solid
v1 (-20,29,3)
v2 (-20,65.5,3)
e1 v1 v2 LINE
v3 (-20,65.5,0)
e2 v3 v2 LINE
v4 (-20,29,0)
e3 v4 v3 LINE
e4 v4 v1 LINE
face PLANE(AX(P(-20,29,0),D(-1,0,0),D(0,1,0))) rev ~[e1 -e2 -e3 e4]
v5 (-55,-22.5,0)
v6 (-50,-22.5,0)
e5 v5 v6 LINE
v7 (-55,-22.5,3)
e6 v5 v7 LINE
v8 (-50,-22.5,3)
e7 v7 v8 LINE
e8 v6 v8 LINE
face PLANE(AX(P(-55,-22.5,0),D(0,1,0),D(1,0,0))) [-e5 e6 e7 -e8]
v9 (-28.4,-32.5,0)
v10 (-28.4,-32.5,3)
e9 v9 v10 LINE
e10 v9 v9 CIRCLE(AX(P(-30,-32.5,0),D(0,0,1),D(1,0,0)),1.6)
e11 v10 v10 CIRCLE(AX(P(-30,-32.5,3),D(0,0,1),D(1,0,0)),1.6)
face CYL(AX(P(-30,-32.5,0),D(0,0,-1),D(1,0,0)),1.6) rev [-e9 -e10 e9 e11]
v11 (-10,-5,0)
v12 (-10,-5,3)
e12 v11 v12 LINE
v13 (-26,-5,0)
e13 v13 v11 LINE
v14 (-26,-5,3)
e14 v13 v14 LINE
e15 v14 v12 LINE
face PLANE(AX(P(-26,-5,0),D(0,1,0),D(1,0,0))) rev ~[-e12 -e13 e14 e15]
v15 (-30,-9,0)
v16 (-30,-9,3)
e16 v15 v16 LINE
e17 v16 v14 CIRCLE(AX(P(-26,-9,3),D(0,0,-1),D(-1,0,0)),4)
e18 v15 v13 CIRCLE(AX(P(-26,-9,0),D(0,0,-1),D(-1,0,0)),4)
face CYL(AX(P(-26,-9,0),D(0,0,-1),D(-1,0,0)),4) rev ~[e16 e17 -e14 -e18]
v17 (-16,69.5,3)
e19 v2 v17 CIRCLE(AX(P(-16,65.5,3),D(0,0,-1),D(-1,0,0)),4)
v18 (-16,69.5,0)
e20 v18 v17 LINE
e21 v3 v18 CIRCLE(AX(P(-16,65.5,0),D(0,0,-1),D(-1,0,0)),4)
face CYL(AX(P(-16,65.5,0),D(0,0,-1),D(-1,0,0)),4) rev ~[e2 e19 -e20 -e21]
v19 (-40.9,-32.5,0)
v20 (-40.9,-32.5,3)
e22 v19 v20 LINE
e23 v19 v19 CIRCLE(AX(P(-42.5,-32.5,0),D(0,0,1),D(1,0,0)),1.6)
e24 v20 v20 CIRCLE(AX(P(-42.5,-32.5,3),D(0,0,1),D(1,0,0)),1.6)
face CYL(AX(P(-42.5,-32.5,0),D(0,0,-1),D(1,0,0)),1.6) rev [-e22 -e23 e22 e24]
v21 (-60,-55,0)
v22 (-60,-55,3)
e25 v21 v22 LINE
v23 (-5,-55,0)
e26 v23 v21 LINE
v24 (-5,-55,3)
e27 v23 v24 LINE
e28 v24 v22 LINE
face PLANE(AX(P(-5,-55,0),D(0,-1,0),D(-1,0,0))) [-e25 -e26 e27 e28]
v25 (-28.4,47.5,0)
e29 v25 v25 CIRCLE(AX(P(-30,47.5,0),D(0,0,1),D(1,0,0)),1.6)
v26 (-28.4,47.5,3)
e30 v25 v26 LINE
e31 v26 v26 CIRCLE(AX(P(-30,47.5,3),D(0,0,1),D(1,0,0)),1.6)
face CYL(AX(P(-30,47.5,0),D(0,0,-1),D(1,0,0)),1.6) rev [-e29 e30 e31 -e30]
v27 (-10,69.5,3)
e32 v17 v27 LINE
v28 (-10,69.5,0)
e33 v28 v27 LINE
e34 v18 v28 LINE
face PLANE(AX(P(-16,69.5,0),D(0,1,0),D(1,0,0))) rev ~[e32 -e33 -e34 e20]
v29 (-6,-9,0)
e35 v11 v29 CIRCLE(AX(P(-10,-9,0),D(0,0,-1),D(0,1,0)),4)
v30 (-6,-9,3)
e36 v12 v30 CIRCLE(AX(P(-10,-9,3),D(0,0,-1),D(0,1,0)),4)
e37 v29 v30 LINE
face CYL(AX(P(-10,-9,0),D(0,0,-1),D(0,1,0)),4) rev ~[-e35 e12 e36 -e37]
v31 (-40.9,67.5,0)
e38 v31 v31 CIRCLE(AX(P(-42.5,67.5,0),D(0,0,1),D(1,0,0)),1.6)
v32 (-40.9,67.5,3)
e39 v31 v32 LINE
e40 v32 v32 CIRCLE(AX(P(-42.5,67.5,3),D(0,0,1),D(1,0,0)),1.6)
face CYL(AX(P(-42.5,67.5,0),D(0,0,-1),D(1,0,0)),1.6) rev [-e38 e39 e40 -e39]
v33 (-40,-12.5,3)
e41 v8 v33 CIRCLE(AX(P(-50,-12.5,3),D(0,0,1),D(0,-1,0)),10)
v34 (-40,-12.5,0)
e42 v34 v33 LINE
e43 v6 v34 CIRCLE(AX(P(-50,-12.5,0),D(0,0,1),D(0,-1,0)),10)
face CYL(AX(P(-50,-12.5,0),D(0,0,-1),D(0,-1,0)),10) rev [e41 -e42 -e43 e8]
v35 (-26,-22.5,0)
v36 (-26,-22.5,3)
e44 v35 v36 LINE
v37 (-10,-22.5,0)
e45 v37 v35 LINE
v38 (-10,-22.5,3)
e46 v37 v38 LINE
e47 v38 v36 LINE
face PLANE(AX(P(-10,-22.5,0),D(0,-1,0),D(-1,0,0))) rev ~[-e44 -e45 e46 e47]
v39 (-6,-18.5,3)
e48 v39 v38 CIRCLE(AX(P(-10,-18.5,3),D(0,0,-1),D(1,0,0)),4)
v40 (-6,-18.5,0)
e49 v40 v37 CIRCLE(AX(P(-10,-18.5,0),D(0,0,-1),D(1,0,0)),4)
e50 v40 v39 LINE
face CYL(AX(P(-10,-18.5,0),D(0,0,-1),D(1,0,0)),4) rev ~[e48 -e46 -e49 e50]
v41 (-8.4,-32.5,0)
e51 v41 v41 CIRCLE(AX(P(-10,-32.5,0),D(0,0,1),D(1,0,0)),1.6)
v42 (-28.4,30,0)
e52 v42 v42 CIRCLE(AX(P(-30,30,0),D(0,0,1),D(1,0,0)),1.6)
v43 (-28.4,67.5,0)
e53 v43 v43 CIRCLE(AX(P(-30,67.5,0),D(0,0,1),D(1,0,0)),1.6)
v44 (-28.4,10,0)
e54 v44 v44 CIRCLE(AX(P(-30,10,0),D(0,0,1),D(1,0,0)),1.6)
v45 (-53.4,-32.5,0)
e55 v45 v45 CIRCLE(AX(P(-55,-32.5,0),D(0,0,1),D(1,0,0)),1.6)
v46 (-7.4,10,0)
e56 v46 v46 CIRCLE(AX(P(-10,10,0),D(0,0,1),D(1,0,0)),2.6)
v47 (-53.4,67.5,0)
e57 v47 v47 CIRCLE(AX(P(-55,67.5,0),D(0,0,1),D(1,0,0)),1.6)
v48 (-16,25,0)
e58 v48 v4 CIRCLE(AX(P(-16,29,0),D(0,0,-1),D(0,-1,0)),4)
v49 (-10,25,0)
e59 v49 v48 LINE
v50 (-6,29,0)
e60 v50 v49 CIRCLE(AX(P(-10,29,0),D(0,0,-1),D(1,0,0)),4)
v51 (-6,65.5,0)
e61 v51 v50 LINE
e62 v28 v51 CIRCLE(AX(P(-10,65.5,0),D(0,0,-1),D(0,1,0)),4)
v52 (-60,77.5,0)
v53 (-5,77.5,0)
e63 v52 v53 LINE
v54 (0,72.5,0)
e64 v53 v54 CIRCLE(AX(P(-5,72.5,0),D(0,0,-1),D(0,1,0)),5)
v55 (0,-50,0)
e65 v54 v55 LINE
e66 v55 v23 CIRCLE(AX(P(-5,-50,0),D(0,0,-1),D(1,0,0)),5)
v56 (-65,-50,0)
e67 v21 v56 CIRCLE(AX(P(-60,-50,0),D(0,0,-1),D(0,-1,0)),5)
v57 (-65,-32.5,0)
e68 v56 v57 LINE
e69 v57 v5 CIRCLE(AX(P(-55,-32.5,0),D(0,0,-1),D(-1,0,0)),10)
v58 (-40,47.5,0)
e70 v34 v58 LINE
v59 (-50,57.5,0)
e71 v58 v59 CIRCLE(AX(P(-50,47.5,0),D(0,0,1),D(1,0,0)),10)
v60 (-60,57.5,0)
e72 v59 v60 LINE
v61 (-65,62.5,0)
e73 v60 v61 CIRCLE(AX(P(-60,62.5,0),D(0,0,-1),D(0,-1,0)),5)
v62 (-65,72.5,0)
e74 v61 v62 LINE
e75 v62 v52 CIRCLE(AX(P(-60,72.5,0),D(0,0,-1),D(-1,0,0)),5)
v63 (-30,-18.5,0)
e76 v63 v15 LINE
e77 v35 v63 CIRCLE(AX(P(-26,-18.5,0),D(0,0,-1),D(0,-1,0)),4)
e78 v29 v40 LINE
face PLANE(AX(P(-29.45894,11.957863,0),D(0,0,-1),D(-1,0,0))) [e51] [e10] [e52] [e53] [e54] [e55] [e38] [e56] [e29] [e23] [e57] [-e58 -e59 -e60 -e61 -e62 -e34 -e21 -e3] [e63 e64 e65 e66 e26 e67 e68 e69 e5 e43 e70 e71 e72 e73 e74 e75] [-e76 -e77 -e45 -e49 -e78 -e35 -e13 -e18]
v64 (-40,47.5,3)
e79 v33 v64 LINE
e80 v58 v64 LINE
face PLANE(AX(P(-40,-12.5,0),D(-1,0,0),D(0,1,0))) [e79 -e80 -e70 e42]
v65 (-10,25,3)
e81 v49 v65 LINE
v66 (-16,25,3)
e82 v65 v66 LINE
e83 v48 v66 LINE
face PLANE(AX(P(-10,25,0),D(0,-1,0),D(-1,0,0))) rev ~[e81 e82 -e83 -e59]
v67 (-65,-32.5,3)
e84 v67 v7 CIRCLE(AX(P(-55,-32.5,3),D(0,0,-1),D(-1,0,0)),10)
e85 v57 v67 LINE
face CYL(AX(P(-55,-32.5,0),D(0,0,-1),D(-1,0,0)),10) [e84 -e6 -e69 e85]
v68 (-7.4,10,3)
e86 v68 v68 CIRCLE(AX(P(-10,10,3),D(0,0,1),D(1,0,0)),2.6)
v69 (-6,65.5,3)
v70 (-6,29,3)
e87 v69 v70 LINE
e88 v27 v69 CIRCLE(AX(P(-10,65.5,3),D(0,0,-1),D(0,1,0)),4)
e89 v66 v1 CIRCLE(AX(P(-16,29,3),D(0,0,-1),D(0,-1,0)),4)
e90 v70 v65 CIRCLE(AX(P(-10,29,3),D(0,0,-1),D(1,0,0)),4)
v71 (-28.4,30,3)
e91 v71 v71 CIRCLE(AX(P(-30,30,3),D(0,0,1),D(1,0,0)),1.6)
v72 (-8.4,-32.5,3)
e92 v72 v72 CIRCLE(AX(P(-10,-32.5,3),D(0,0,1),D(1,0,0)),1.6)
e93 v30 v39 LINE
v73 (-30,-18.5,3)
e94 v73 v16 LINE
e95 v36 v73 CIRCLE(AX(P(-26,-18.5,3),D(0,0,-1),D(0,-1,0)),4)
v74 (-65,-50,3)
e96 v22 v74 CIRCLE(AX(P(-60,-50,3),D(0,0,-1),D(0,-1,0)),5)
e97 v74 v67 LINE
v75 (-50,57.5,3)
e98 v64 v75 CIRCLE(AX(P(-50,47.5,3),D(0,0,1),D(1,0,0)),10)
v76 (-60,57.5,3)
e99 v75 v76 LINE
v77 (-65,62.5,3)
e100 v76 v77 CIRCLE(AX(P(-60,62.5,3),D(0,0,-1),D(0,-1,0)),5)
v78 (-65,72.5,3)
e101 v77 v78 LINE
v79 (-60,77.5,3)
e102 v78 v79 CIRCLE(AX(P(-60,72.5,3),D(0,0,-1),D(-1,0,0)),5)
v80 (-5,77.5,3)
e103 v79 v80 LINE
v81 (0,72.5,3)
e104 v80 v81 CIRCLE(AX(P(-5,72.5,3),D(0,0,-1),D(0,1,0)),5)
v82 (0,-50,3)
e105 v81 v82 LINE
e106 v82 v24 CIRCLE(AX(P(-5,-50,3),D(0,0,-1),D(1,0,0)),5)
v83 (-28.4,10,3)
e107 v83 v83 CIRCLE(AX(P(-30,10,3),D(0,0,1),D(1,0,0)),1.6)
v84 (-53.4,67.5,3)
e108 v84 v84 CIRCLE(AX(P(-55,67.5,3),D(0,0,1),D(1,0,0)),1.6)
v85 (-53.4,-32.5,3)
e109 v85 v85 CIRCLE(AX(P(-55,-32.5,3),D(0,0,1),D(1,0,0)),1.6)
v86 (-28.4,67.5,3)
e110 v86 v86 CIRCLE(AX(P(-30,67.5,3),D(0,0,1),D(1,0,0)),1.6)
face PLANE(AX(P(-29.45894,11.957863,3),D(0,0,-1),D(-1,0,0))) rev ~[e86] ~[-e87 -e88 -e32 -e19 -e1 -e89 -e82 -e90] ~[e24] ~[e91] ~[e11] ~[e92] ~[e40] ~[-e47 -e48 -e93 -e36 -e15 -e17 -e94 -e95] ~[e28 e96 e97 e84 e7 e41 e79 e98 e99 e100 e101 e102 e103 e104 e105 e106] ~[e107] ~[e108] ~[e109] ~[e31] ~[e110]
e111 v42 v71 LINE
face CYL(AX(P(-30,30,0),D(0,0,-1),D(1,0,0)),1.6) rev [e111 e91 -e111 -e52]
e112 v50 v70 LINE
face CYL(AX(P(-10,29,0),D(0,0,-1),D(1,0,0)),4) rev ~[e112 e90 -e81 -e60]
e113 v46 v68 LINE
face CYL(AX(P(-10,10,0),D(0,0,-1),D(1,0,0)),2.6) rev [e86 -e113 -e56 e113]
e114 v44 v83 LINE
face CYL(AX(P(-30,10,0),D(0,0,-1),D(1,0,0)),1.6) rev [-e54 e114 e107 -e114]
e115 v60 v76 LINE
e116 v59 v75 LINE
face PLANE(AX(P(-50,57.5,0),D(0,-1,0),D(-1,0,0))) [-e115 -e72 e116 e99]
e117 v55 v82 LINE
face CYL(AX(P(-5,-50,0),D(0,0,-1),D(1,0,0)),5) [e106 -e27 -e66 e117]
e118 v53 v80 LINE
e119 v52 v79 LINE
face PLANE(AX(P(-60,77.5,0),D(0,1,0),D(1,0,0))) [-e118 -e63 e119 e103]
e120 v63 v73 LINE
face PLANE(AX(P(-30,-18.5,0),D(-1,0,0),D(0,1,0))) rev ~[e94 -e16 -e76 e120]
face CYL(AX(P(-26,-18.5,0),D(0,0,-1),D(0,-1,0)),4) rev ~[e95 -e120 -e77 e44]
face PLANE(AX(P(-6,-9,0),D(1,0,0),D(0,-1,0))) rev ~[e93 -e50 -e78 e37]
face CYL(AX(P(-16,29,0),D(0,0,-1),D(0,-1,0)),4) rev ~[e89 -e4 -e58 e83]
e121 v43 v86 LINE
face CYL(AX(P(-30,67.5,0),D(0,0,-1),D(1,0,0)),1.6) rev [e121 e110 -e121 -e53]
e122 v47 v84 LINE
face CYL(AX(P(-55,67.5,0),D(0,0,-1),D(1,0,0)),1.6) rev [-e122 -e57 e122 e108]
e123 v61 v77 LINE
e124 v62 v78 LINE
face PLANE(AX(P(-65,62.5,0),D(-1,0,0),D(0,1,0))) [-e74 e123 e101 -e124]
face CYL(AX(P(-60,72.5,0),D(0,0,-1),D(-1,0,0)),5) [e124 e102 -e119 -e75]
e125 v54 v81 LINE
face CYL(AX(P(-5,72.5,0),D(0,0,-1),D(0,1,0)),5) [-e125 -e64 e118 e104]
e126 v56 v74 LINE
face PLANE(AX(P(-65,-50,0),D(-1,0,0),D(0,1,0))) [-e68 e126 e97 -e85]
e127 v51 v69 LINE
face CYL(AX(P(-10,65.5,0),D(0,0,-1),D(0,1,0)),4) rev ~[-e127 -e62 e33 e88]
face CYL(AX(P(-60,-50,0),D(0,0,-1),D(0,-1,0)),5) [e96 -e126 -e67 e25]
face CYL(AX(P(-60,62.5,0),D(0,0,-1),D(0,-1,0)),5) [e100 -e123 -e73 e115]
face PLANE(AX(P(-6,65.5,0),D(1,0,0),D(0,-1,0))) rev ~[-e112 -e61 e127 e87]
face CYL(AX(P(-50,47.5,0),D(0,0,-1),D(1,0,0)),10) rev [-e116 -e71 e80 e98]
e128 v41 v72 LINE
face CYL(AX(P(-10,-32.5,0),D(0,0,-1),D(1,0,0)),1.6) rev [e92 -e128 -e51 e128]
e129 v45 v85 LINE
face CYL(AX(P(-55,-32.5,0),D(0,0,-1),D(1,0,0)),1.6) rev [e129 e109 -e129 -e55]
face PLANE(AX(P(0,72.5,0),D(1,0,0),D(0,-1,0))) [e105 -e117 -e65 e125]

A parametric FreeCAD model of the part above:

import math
import FreeCAD as App
import Part
import Sketcher
from FreeCAD import Vector

doc = App.newDocument("Part")
body = doc.addObject("PartDesign::Body", "Body")

# Sketch on XY plane
sketch1 = body.newObject("Sketcher::SketchObject", "Sketch")
sketch1.AttachmentSupport = (doc.getObject("XY_Plane"), [""])
sketch1.MapMode = "FlatFace"
sketch1.addGeometry([
    Part.LineSegment(Vector(-5, 77.5, 0), Vector(-60, 77.5, 0)),  # 0
    Part.ArcOfCircle(Part.Circle(Vector(-60, 72.5, 0), Vector(0, 0, 1), 5), math.radians(90), math.radians(180)),  # 1
    Part.LineSegment(Vector(-65, 72.5, 0), Vector(-65, 62.5, 0)),  # 2
    Part.ArcOfCircle(Part.Circle(Vector(-60, 62.5, 0), Vector(0, 0, 1), 5), math.radians(180), math.radians(270)),  # 3
    Part.LineSegment(Vector(-60, 57.5, 0), Vector(-50, 57.5, 0)),  # 4
    Part.ArcOfCircle(Part.Circle(Vector(-50, 47.5, 0), Vector(0, 0, 1), 10), math.radians(0), math.radians(90)),  # 5
    Part.LineSegment(Vector(-40, 47.5, 0), Vector(-40, -12.5, 0)),  # 6
    Part.ArcOfCircle(Part.Circle(Vector(-50, -12.5, 0), Vector(0, 0, 1), 10), math.radians(-90), math.radians(0)),  # 7
    Part.LineSegment(Vector(-50, -22.5, 0), Vector(-55, -22.5, 0)),  # 8
    Part.ArcOfCircle(Part.Circle(Vector(-55, -32.5, 0), Vector(0, 0, 1), 10), math.radians(90), math.radians(180)),  # 9
    Part.LineSegment(Vector(-65, -32.5, 0), Vector(-65, -50, 0)),  # 10
    Part.ArcOfCircle(Part.Circle(Vector(-60, -50, 0), Vector(0, 0, 1), 5), math.radians(180), math.radians(270)),  # 11
    Part.LineSegment(Vector(-60, -55, 0), Vector(-5, -55, 0)),  # 12
    Part.ArcOfCircle(Part.Circle(Vector(-5, -50, 0), Vector(0, 0, 1), 5), math.radians(-90), math.radians(0)),  # 13
    Part.LineSegment(Vector(0, -50, 0), Vector(0, 72.5, 0)),  # 14
    Part.ArcOfCircle(Part.Circle(Vector(-5, 72.5, 0), Vector(0, 0, 1), 5), math.radians(0), math.radians(90)),  # 15
    Part.Circle(Vector(-10, -32.5, 0), Vector(0, 0, 1), 1.6),  # 16
    Part.LineSegment(Vector(-26, -5, 0), Vector(-10, -5, 0)),  # 17
    Part.ArcOfCircle(Part.Circle(Vector(-10, -9, 0), Vector(0, 0, 1), 4), math.radians(0), math.radians(90)),  # 18
    Part.LineSegment(Vector(-6, -9, 0), Vector(-6, -18.5, 0)),  # 19
    Part.ArcOfCircle(Part.Circle(Vector(-10, -18.5, 0), Vector(0, 0, 1), 4), math.radians(-90), math.radians(0)),  # 20
    Part.LineSegment(Vector(-10, -22.5, 0), Vector(-26, -22.5, 0)),  # 21
    Part.ArcOfCircle(Part.Circle(Vector(-26, -18.5, 0), Vector(0, 0, 1), 4), math.radians(180), math.radians(270)),  # 22
    Part.LineSegment(Vector(-30, -18.5, 0), Vector(-30, -9, 0)),  # 23
    Part.ArcOfCircle(Part.Circle(Vector(-26, -9, 0), Vector(0, 0, 1), 4), math.radians(90), math.radians(180)),  # 24
    Part.Circle(Vector(-30, -32.5, 0), Vector(0, 0, 1), 1.6),  # 25
    Part.Circle(Vector(-10, 10, 0), Vector(0, 0, 1), 2.6),  # 26
    Part.Circle(Vector(-30, 10, 0), Vector(0, 0, 1), 1.6),  # 27
    Part.Circle(Vector(-42.5, -32.5, 0), Vector(0, 0, 1), 1.6),  # 28
    Part.Circle(Vector(-55, -32.5, 0), Vector(0, 0, 1), 1.6),  # 29
    Part.Circle(Vector(-30, 30, 0), Vector(0, 0, 1), 1.6),  # 30
    Part.LineSegment(Vector(-10, 25, 0), Vector(-16, 25, 0)),  # 31
    Part.ArcOfCircle(Part.Circle(Vector(-16, 29, 0), Vector(0, 0, 1), 4), math.radians(180), math.radians(270)),  # 32
    Part.LineSegment(Vector(-20, 29, 0), Vector(-20, 65.5, 0)),  # 33
    Part.ArcOfCircle(Part.Circle(Vector(-16, 65.5, 0), Vector(0, 0, 1), 4), math.radians(90), math.radians(180)),  # 34
    Part.LineSegment(Vector(-16, 69.5, 0), Vector(-10, 69.5, 0)),  # 35
    Part.ArcOfCircle(Part.Circle(Vector(-10, 65.5, 0), Vector(0, 0, 1), 4), math.radians(0), math.radians(90)),  # 36
    Part.LineSegment(Vector(-6, 65.5, 0), Vector(-6, 29, 0)),  # 37
    Part.ArcOfCircle(Part.Circle(Vector(-10, 29, 0), Vector(0, 0, 1), 4), math.radians(-90), math.radians(0)),  # 38
    Part.Circle(Vector(-30, 47.5, 0), Vector(0, 0, 1), 1.6),  # 39
    Part.Circle(Vector(-30, 67.5, 0), Vector(0, 0, 1), 1.6),  # 40
    Part.Circle(Vector(-42.5, 67.5, 0), Vector(0, 0, 1), 1.6),  # 41
    Part.Circle(Vector(-55, 67.5, 0), Vector(0, 0, 1), 1.6),  # 42
], False)
sketch1.addConstraint([
    Sketcher.Constraint("Tangent", 0, 2, 1, 1),
    Sketcher.Constraint("Tangent", 1, 2, 2, 1),
    Sketcher.Constraint("Tangent", 2, 2, 3, 1),
    Sketcher.Constraint("Tangent", 3, 2, 4, 1),
    Sketcher.Constraint("Tangent", 4, 2, 5, 2),
    Sketcher.Constraint("Tangent", 5, 1, 6, 1),
    Sketcher.Constraint("Tangent", 6, 2, 7, 2),
    Sketcher.Constraint("Tangent", 7, 1, 8, 1),
    Sketcher.Constraint("Tangent", 8, 2, 9, 1),
    Sketcher.Constraint("Tangent", 9, 2, 10, 1),
    Sketcher.Constraint("Tangent", 10, 2, 11, 1),
    Sketcher.Constraint("Tangent", 11, 2, 12, 1),
    Sketcher.Constraint("Tangent", 12, 2, 13, 1),
    Sketcher.Constraint("Tangent", 13, 2, 14, 1),
    Sketcher.Constraint("Tangent", 14, 2, 15, 1),
    Sketcher.Constraint("Tangent", 15, 2, 0, 1),
    Sketcher.Constraint("Tangent", 17, 2, 18, 2),
    Sketcher.Constraint("Tangent", 18, 1, 19, 1),
    Sketcher.Constraint("Tangent", 19, 2, 20, 2),
    Sketcher.Constraint("Tangent", 20, 1, 21, 1),
    Sketcher.Constraint("Tangent", 21, 2, 22, 2),
    Sketcher.Constraint("Tangent", 22, 1, 23, 1),
    Sketcher.Constraint("Tangent", 23, 2, 24, 2),
    Sketcher.Constraint("Tangent", 24, 1, 17, 1),
    Sketcher.Constraint("Tangent", 31, 2, 32, 2),
    Sketcher.Constraint("Tangent", 32, 1, 33, 1),
    Sketcher.Constraint("Tangent", 33, 2, 34, 2),
    Sketcher.Constraint("Tangent", 34, 1, 35, 1),
    Sketcher.Constraint("Tangent", 35, 2, 36, 2),
    Sketcher.Constraint("Tangent", 36, 1, 37, 1),
    Sketcher.Constraint("Tangent", 37, 2, 38, 2),
    Sketcher.Constraint("Tangent", 38, 1, 31, 1),
    Sketcher.Constraint("Horizontal", 0),
    Sketcher.Constraint("Vertical", 2),
    Sketcher.Constraint("Horizontal", 4),
    Sketcher.Constraint("Vertical", 6),
    Sketcher.Constraint("Horizontal", 8),
    Sketcher.Constraint("Vertical", 10),
    Sketcher.Constraint("Horizontal", 12),
    Sketcher.Constraint("Vertical", 14),
    Sketcher.Constraint("Horizontal", 17),
    Sketcher.Constraint("Vertical", 19),
    Sketcher.Constraint("Horizontal", 21),
    Sketcher.Constraint("Vertical", 23),
    Sketcher.Constraint("Horizontal", 31),
    Sketcher.Constraint("Vertical", 33),
    Sketcher.Constraint("Horizontal", 35),
    Sketcher.Constraint("Vertical", 37),
    Sketcher.Constraint("Coincident", 29, 3, 9, 3),
    Sketcher.Constraint("Equal", 1, 3),
    Sketcher.Constraint("Equal", 5, 7),
    Sketcher.Constraint("Equal", 7, 9),
    Sketcher.Constraint("Equal", 3, 11),
    Sketcher.Constraint("Equal", 11, 13),
    Sketcher.Constraint("Equal", 13, 15),
    Sketcher.Constraint("Equal", 18, 20),
    Sketcher.Constraint("Equal", 20, 22),
    Sketcher.Constraint("Equal", 22, 24),
    Sketcher.Constraint("Equal", 16, 25),
    Sketcher.Constraint("Equal", 25, 27),
    Sketcher.Constraint("Equal", 27, 28),
    Sketcher.Constraint("Equal", 28, 29),
    Sketcher.Constraint("Equal", 29, 30),
    Sketcher.Constraint("Equal", 24, 32),
    Sketcher.Constraint("Equal", 32, 34),
    Sketcher.Constraint("Equal", 34, 36),
    Sketcher.Constraint("Equal", 36, 38),
    Sketcher.Constraint("Equal", 30, 39),
    Sketcher.Constraint("Equal", 39, 40),
    Sketcher.Constraint("Equal", 40, 41),
    Sketcher.Constraint("Equal", 41, 42),
    Sketcher.Constraint("PointOnObject", 13, 2, -2),
    Sketcher.Constraint("Horizontal", 9, 3, 16, 3),
    Sketcher.Constraint("Horizontal", 16, 3, 25, 3),
    Sketcher.Constraint("Horizontal", 26, 3, 27, 3),
    Sketcher.Constraint("Horizontal", 25, 3, 28, 3),
    Sketcher.Constraint("Horizontal", 5, 3, 39, 3),
    Sketcher.Constraint("Horizontal", 40, 3, 41, 3),
    Sketcher.Constraint("Horizontal", 41, 3, 42, 3),
    Sketcher.Constraint("Horizontal", 8, 2, 20, 1),
    Sketcher.Constraint("Vertical", 3, 3, 11, 3),
    Sketcher.Constraint("Vertical", 16, 3, 18, 3),
    Sketcher.Constraint("Vertical", 20, 3, 26, 3),
    Sketcher.Constraint("Vertical", 25, 3, 27, 3),
    Sketcher.Constraint("Vertical", 27, 3, 30, 3),
    Sketcher.Constraint("Vertical", 26, 3, 36, 3),
    Sketcher.Constraint("Vertical", 30, 3, 39, 3),
    Sketcher.Constraint("Vertical", 39, 3, 40, 3),
    Sketcher.Constraint("Vertical", 28, 3, 41, 3),
    Sketcher.Constraint("Vertical", 29, 3, 42, 3),
    Sketcher.Constraint("Vertical", 40, 3, 22, 1),
    Sketcher.Constraint("Equal", 4, 2),
    Sketcher.Constraint("Radius", 1, 5.0),
    Sketcher.Constraint("Radius", 5, 10.0),
    Sketcher.Constraint("Radius", 18, 4.0),
    Sketcher.Constraint("Diameter", 16, 3.2),
    Sketcher.Constraint("Diameter", 26, 5.2),
    Sketcher.Constraint("DistanceX", 0, 2, 0, 1, 55.0),
    Sketcher.Constraint("DistanceX", 4, 1, 4, 2, 10.0),
    Sketcher.Constraint("DistanceX", 17, 1, 17, 2, 16.0),
    Sketcher.Constraint("DistanceX", 31, 2, 31, 1, 6.0),
    Sketcher.Constraint("DistanceY", 6, 2, 6, 1, 60.0),
    Sketcher.Constraint("DistanceY", 10, 2, 10, 1, 17.5),
    Sketcher.Constraint("DistanceY", 19, 2, 19, 1, 9.5),
    Sketcher.Constraint("DistanceY", 33, 1, 33, 2, 36.5),
    Sketcher.Constraint("DistanceY", 11, 3, -1, 1, 50.0),
    Sketcher.Constraint("DistanceX", 16, 3, -1, 1, 10.0),
    Sketcher.Constraint("DistanceY", -1, 1, 26, 3, 10.0),
    Sketcher.Constraint("DistanceY", -1, 1, 30, 3, 30.0),
    Sketcher.Constraint("DistanceY", -1, 1, 32, 3, 29.0),
    Sketcher.Constraint("DistanceY", 34, 3, 40, 3, 2.0),
    Sketcher.Constraint("DistanceX", 28, 3, -1, 1, 42.5),
])
pad1 = body.newObject("PartDesign::Pad", "Pad")
pad1.Profile = sketch1
pad1.Length = 3

doc.recompute()
